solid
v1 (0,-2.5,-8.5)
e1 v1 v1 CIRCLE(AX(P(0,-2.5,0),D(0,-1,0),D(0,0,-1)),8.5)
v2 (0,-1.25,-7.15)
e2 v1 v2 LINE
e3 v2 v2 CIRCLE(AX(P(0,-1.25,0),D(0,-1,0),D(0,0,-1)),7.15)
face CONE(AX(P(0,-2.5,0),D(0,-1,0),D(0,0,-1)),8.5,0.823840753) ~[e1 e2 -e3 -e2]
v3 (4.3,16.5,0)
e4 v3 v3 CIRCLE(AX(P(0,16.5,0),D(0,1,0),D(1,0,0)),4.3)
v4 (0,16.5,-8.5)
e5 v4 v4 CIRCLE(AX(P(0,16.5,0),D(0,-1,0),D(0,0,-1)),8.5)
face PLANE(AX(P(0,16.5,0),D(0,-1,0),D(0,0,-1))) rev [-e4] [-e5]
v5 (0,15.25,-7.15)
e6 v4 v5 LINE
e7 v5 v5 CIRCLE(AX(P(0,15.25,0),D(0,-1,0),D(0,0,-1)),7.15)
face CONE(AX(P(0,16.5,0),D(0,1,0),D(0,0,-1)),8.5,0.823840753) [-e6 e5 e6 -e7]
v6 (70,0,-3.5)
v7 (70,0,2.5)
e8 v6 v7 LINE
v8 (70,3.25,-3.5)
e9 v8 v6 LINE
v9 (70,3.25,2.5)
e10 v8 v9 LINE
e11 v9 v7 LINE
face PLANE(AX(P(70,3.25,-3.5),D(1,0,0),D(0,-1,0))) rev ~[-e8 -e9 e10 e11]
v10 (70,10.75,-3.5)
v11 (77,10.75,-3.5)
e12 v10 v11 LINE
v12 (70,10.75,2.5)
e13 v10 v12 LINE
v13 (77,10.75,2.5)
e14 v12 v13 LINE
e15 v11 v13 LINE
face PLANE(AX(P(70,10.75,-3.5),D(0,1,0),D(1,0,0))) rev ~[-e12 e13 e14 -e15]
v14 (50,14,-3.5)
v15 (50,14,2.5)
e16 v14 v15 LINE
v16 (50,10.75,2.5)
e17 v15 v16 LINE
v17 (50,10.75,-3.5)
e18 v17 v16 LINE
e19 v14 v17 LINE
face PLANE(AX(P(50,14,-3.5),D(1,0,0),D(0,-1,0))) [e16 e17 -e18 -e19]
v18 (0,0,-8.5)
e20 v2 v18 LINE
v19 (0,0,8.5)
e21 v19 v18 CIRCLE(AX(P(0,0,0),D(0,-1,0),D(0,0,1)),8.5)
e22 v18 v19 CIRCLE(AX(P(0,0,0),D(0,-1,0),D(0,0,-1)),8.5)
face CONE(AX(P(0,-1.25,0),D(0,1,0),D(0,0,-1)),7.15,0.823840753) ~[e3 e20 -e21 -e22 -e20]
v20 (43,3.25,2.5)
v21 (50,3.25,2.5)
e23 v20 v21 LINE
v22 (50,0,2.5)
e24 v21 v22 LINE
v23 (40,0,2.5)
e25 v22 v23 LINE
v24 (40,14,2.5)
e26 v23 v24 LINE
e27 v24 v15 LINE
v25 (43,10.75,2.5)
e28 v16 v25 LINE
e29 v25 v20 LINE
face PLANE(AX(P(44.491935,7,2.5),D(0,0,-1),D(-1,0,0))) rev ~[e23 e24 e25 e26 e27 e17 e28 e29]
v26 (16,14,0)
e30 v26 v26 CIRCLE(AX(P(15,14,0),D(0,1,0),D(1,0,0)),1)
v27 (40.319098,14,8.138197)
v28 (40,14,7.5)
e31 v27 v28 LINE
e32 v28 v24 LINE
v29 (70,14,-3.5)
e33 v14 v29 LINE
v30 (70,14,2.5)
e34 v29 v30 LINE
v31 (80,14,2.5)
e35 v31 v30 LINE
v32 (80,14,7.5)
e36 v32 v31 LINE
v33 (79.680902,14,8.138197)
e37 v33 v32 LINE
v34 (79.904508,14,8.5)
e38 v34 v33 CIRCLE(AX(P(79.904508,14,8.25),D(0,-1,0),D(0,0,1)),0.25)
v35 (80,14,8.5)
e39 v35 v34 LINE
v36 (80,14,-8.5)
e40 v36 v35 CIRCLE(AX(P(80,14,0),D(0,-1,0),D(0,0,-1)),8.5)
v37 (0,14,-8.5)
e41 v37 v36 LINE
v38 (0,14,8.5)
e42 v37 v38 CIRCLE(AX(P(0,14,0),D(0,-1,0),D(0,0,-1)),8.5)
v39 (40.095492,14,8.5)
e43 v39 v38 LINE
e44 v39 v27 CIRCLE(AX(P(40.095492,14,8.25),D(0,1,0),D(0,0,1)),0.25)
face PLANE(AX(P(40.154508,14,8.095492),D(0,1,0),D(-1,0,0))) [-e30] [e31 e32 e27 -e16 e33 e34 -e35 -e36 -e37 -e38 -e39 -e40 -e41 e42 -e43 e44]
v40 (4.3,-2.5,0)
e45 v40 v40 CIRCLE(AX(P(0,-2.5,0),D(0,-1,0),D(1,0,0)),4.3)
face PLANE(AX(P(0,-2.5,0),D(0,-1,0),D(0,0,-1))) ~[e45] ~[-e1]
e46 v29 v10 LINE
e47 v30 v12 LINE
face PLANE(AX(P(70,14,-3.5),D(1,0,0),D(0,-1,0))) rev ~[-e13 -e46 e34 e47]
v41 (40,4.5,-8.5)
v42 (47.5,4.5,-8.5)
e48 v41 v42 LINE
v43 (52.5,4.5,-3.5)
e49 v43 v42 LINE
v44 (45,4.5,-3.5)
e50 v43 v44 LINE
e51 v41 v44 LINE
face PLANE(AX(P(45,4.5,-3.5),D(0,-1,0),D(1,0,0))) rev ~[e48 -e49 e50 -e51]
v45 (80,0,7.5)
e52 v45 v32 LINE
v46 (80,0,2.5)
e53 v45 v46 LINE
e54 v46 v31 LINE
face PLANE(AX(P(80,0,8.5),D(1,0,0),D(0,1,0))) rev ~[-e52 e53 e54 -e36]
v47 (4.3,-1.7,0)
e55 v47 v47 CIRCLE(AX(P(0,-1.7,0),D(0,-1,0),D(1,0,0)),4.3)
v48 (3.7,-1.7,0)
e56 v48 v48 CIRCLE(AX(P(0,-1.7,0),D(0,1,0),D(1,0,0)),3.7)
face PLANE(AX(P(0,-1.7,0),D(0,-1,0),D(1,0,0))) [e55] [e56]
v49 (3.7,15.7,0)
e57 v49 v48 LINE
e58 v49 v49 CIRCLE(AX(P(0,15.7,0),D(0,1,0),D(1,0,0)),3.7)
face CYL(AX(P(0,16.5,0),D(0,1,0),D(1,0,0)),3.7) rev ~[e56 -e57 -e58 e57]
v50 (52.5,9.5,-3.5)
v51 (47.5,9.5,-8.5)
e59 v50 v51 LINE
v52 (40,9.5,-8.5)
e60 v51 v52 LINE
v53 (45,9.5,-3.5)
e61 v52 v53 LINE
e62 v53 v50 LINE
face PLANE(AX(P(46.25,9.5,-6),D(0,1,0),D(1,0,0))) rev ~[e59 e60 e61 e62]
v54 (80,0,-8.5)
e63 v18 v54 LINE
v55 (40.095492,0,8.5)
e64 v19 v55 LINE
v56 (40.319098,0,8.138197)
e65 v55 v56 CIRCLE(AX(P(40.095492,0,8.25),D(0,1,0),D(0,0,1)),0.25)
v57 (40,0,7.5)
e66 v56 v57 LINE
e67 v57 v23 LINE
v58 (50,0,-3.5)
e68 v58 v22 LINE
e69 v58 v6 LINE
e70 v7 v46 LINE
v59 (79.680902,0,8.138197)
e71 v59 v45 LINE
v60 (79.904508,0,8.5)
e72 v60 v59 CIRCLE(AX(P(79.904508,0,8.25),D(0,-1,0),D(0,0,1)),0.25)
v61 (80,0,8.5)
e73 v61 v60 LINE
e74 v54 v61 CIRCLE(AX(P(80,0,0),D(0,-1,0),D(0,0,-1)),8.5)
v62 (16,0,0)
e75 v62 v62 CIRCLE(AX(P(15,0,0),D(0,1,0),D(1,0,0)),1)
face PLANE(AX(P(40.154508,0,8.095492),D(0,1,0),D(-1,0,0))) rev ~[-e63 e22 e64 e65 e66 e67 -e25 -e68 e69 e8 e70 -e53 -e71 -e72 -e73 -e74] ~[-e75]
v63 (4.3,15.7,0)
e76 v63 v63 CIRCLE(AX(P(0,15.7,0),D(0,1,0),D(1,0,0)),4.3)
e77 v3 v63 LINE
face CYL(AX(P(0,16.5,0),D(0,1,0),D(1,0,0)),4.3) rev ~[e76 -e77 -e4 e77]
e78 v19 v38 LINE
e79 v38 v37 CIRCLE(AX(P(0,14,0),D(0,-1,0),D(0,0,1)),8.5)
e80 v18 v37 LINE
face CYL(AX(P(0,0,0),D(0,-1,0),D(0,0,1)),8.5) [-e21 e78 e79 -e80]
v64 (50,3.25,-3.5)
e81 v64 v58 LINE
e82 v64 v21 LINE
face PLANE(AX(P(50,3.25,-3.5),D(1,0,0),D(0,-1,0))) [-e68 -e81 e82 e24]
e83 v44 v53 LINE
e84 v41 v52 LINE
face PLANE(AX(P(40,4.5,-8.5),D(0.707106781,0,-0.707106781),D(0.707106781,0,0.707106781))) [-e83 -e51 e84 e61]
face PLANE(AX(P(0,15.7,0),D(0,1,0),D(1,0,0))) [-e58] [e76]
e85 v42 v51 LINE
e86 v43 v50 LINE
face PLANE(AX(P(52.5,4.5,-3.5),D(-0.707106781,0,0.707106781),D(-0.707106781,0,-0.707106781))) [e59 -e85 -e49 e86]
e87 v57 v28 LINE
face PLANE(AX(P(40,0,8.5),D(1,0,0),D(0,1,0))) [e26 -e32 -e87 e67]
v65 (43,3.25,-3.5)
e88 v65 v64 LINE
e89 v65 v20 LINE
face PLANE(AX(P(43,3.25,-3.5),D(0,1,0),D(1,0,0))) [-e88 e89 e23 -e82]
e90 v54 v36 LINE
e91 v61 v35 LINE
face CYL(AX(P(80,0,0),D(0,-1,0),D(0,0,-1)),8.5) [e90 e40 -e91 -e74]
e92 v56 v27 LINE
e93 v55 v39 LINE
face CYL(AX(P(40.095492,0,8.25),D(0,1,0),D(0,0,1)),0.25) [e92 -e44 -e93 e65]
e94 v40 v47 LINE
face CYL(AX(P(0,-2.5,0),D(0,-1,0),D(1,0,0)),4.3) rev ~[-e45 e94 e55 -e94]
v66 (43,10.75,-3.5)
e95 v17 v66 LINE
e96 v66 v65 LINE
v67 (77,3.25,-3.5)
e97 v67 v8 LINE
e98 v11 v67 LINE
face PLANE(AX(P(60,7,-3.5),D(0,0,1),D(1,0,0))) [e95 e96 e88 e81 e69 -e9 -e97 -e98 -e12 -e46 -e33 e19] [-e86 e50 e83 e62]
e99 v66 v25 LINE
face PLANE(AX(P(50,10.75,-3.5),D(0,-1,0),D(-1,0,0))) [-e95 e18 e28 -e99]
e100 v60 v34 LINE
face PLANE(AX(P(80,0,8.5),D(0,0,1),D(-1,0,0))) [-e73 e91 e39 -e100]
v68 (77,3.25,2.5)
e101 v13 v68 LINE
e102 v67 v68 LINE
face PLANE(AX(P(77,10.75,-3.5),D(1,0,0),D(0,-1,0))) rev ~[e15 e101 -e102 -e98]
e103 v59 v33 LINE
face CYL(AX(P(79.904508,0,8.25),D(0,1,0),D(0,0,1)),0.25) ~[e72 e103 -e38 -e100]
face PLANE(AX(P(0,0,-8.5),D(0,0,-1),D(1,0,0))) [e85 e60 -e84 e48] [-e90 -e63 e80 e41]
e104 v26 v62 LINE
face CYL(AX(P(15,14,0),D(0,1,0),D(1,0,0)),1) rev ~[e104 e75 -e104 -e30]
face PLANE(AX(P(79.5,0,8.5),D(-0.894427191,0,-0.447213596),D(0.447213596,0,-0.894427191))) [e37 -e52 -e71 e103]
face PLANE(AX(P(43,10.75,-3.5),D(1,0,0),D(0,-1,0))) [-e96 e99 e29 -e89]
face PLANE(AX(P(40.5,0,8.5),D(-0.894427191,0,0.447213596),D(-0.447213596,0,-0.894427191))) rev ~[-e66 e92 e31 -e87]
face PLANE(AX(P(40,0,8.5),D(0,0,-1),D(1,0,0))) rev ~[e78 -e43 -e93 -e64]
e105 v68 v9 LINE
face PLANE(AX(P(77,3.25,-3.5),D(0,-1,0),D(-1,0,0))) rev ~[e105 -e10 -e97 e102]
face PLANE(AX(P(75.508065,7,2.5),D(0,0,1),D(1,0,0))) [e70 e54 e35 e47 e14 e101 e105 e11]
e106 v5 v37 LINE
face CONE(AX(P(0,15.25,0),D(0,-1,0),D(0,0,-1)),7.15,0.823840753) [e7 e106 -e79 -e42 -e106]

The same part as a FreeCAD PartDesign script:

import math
import FreeCAD as App
import Part
import Sketcher
from FreeCAD import Vector
Q = App.Units.Quantity


def edges_at(feature, points):
    """Names of the edges that pass closest to the given points."""
    edges = feature.Shape.Edges
    near = lambda p: min(range(len(edges)), key=lambda i: edges[i].distToShape(Part.Vertex(*p))[0])
    return sorted({f"Edge{near(p) + 1}" for p in points})


def add_polygon(sketch, points):
    """Adds a closed chain of lines whose ends are joined by coincident constraints."""
    first, n = sketch.GeometryCount, len(points)
    for a, b in zip(points, points[1:] + points[:1]):
        sketch.addGeometry(Part.LineSegment(App.Vector(*a, 0), App.Vector(*b, 0)), False)
    for i in range(n):
        sketch.addConstraint(Sketcher.Constraint("Coincident", first + i, 2, first + (i + 1) % n, 1))

doc = App.newDocument("Part")
body = doc.addObject("PartDesign::Body", "Body")

sketch1 = body.newObject("Sketcher::SketchObject", "Sketch")
sketch1.AttachmentSupport = (doc.getObject("XZ_Plane"), [""])
sketch1.MapMode = "FlatFace"
sketch1.addGeometry(Part.LineSegment(Vector(80, -8.5, 0), Vector(0, -8.5, 0)), False)
sketch1.addGeometry(Part.ArcOfCircle(Part.Circle(Vector(0, 0, 0), Vector(0, 0, 1), 8.5), math.radians(90), math.radians(270)), False)
sketch1.addGeometry(Part.LineSegment(Vector(0, 8.5, 0), Vector(80, 8.5, 0)), False)
sketch1.addGeometry(Part.ArcOfCircle(Part.Circle(Vector(80, 0, 0), Vector(0, 0, 1), 8.5), math.radians(-90), math.radians(90)), False)
sketch1.addConstraint(Sketcher.Constraint("Tangent", 0, 2, 1, 2))
sketch1.addConstraint(Sketcher.Constraint("Tangent", 1, 1, 2, 1))
sketch1.addConstraint(Sketcher.Constraint("Tangent", 2, 2, 3, 2))
sketch1.addConstraint(Sketcher.Constraint("Tangent", 3, 1, 0, 1))
sketch1.addConstraint(Sketcher.Constraint("Horizontal", 0))
sketch1.addConstraint(Sketcher.Constraint("Horizontal", 2))
sketch1.addConstraint(Sketcher.Constraint("Coincident", 1, 3, -1, 1))
sketch1.addConstraint(Sketcher.Constraint("Radius", 1, Q("8.5 mm")))
sketch1.addConstraint(Sketcher.Constraint("DistanceX", 0, 2, 0, 1, Q("80 mm")))
pad1 = body.newObject("PartDesign::Pad", "Pad")
pad1.Profile = sketch1
pad1.Length = 14
pad1.Reversed = True

sketch2 = body.newObject("Sketcher::SketchObject", "Sketch001")
sketch2.AttachmentSupport = (doc.getObject("YZ_Plane"), [""])
sketch2.MapMode = "FlatFace"
add_polygon(sketch2, [(16.5, 0), (14, 0), (14, -8.5), (15.25, -7.15), (16.5, -8.5)])
add_polygon(sketch2, [(0, 0), (-2.5, 0), (-2.5, -8.5), (-1.25, -7.15), (0, -8.5)])
sketch2.addConstraint(Sketcher.Constraint("Horizontal", 0))
sketch2.addConstraint(Sketcher.Constraint("Vertical", 1))
sketch2.addConstraint(Sketcher.Constraint("Vertical", 4))
sketch2.addConstraint(Sketcher.Constraint("Horizontal", 5))
sketch2.addConstraint(Sketcher.Constraint("Vertical", 6))
sketch2.addConstraint(Sketcher.Constraint("Vertical", 9))
sketch2.addConstraint(Sketcher.Constraint("Coincident", 9, 2, -1, 1))
sketch2.addConstraint(Sketcher.Constraint("PointOnObject", 0, 2, -1))
sketch2.addConstraint(Sketcher.Constraint("Parallel", 2, 7))
sketch2.addConstraint(Sketcher.Constraint("Parallel", 3, 8))
sketch2.addConstraint(Sketcher.Constraint("Horizontal", 1, 2, 3, 2))
sketch2.addConstraint(Sketcher.Constraint("Horizontal", 3, 2, 6, 2))
sketch2.addConstraint(Sketcher.Constraint("Horizontal", 2, 2, 7, 2))
sketch2.addConstraint(Sketcher.Constraint("Horizontal", 6, 2, 8, 2))
sketch2.addConstraint(Sketcher.Constraint("Equal", 2, 3))
sketch2.addConstraint(Sketcher.Constraint("DistanceX", 0, 2, 0, 1, Q("2.5 mm")))
sketch2.addConstraint(Sketcher.Constraint("DistanceY", 1, 2, 1, 1, Q("8.5 mm")))
sketch2.addConstraint(Sketcher.Constraint("DistanceX", -1, 1, 0, 2, Q("14 mm")))
sketch2.addConstraint(Sketcher.Constraint("DistanceY", 2, 2, -1, 1, Q("7.15 mm")))
revolution = body.newObject("PartDesign::Revolution", "Revolution")
revolution.Profile = sketch2
revolution.ReferenceAxis = (sketch2, ["H_Axis"])
revolution.Angle = 360

sketch3 = body.newObject("Sketcher::SketchObject", "Sketch002")
sketch3.AttachmentSupport = (doc.getObject("XZ_Plane"), [""])
sketch3.MapMode = "FlatFace"
sketch3.AttachmentOffset = App.Placement(Vector(0, 0, -16.5), App.Rotation())
sketch3.addGeometry(Part.Circle(Vector(0, 0, 0), Vector(0, 0, 1), 3.7), False)
sketch3.addConstraint(Sketcher.Constraint("Coincident", 0, 3, -1, 1))
sketch3.addConstraint(Sketcher.Constraint("Diameter", 0, Q("7.4 mm")))
pocket1 = body.newObject("PartDesign::Pocket", "Pocket")
pocket1.Profile = sketch3
pocket1.Length = 19
pocket1.Reversed = True

sketch4 = body.newObject("Sketcher::SketchObject", "Sketch003")
sketch4.AttachmentSupport = (doc.getObject("XZ_Plane"), [""])
sketch4.MapMode = "FlatFace"
sketch4.AttachmentOffset = App.Placement(Vector(0, 0, -16.5), App.Rotation())
sketch4.addGeometry(Part.Circle(Vector(0, 0, 0), Vector(0, 0, 1), 4.3), False)
sketch4.addConstraint(Sketcher.Constraint("Coincident", 0, 3, -1, 1))
sketch4.addConstraint(Sketcher.Constraint("Diameter", 0, Q("8.6 mm")))
pocket2 = body.newObject("PartDesign::Pocket", "Pocket001")
pocket2.Profile = sketch4
pocket2.Length = 0.8
pocket2.Reversed = True

sketch5 = body.newObject("Sketcher::SketchObject", "Sketch004")
sketch5.AttachmentSupport = (doc.getObject("XZ_Plane"), [""])
sketch5.MapMode = "FlatFace"
sketch5.AttachmentOffset = App.Placement(Vector(0, 0, 2.5), App.Rotation())
sketch5.addGeometry(Part.Circle(Vector(0, 0, 0), Vector(0, 0, 1), 4.3), False)
sketch5.addConstraint(Sketcher.Constraint("Coincident", 0, 3, -1, 1))
sketch5.addConstraint(Sketcher.Constraint("Diameter", 0, Q("8.6 mm")))
pocket3 = body.newObject("PartDesign::Pocket", "Pocket002")
pocket3.Profile = sketch5
pocket3.Length = 0.8

sketch6 = body.newObject("Sketcher::SketchObject", "Sketch005")
sketch6.AttachmentSupport = (doc.getObject("XY_Plane"), [""])
sketch6.MapMode = "FlatFace"
sketch6.AttachmentOffset = App.Placement(Vector(0, 0, 8.5), App.Rotation())
add_polygon(sketch6, [(40, 14), (40, 0), (80, 0), (80, 14)])
sketch6.addConstraint(Sketcher.Constraint("Vertical", 0))
sketch6.addConstraint(Sketcher.Constraint("Horizontal", 1))
sketch6.addConstraint(Sketcher.Constraint("Vertical", 2))
sketch6.addConstraint(Sketcher.Constraint("Horizontal", 3))
sketch6.addConstraint(Sketcher.Constraint("PointOnObject", 0, 2, -1))
sketch6.addConstraint(Sketcher.Constraint("DistanceX", 1, 1, 1, 2, Q("40 mm")))
sketch6.addConstraint(Sketcher.Constraint("DistanceY", 0, 2, 0, 1, Q("14 mm")))
sketch6.addConstraint(Sketcher.Constraint("DistanceX", -1, 1, 0, 2, Q("40 mm")))
pocket4 = body.newObject("PartDesign::Pocket", "Pocket003")
pocket4.Profile = sketch6
pocket4.Length = 12

sketch7 = body.newObject("Sketcher::SketchObject", "Sketch006")
sketch7.AttachmentSupport = (doc.getObject("XY_Plane"), [""])
sketch7.MapMode = "FlatFace"
sketch7.AttachmentOffset = App.Placement(Vector(0, 0, -3.5), App.Rotation())
add_polygon(sketch7, [(45, 9.5), (45, 4.5), (47.5, 4.5), (47.5, 9.5)])
sketch7.addConstraint(Sketcher.Constraint("Vertical", 0))
sketch7.addConstraint(Sketcher.Constraint("Horizontal", 1))
sketch7.addConstraint(Sketcher.Constraint("Vertical", 2))
sketch7.addConstraint(Sketcher.Constraint("Horizontal", 3))
sketch7.addConstraint(Sketcher.Constraint("DistanceY", 0, 2, 0, 1, Q("5 mm")))
sketch7.addConstraint(Sketcher.Constraint("DistanceX", 1, 1, 1, 2, Q("2.5 mm")))
sketch7.addConstraint(Sketcher.Constraint("DistanceX", -1, 1, 0, 2, Q("45 mm")))
sketch7.addConstraint(Sketcher.Constraint("DistanceY", -1, 1, 0, 2, Q("4.5 mm")))
pocket5 = body.newObject("PartDesign::Pocket", "Pocket004")
pocket5.Profile = sketch7
pocket5.Length = 5

sketch8 = body.newObject("Sketcher::SketchObject", "Sketch007")
sketch8.AttachmentSupport = (doc.getObject("XZ_Plane"), [""])
sketch8.MapMode = "FlatFace"
sketch8.AttachmentOffset = App.Placement(Vector(0, 0, -4.5), App.Rotation())
add_polygon(sketch8, [(52.5, -3.5), (47.5, -8.5), (40, -8.5), (45, -3.5)])
sketch8.addConstraint(Sketcher.Constraint("Horizontal", 1))
sketch8.addConstraint(Sketcher.Constraint("Horizontal", 3))
sketch8.addConstraint(Sketcher.Constraint("Parallel", 0, 2))
sketch8.addConstraint(Sketcher.Constraint("Angle", 0, Q("-135 deg")))
sketch8.addConstraint(Sketcher.Constraint("DistanceX", 1, 2, 1, 1, Q("7.5 mm")))
sketch8.addConstraint(Sketcher.Constraint("DistanceX", -1, 1, 1, 2, Q("40 mm")))
sketch8.addConstraint(Sketcher.Constraint("DistanceX", -1, 1, 2, 2, Q("45 mm")))
sketch8.addConstraint(Sketcher.Constraint("DistanceY", 0, 2, -1, 1, Q("8.5 mm")))
pocket6 = body.newObject("PartDesign::Pocket", "Pocket005")
pocket6.Profile = sketch8
pocket6.Length = 5

sketch9 = body.newObject("Sketcher::SketchObject", "Sketch008")
sketch9.AttachmentSupport = (doc.getObject("XY_Plane"), [""])
sketch9.MapMode = "FlatFace"
sketch9.AttachmentOffset = App.Placement(Vector(0, 0, -3.5), App.Rotation())
add_polygon(sketch9, [(80, 14), (70, 14), (70, 10.75), (77, 10.75), (77, 3.25), (70, 3.25), (70, 0), (80, 0)])
add_polygon(sketch9, [(50, 10.75), (50, 14), (40, 14), (40, 0), (50, 0), (50, 3.25), (43, 3.25), (43, 10.75)])
sketch9.addConstraint(Sketcher.Constraint("Horizontal", 0))
sketch9.addConstraint(Sketcher.Constraint("Vertical", 1))
sketch9.addConstraint(Sketcher.Constraint("Horizontal", 2))
sketch9.addConstraint(Sketcher.Constraint("Vertical", 3))
sketch9.addConstraint(Sketcher.Constraint("Horizontal", 4))
sketch9.addConstraint(Sketcher.Constraint("Vertical", 5))
sketch9.addConstraint(Sketcher.Constraint("Horizontal", 6))
sketch9.addConstraint(Sketcher.Constraint("Vertical", 7))
sketch9.addConstraint(Sketcher.Constraint("Vertical", 8))
sketch9.addConstraint(Sketcher.Constraint("Horizontal", 9))
sketch9.addConstraint(Sketcher.Constraint("Vertical", 10))
sketch9.addConstraint(Sketcher.Constraint("Horizontal", 11))
sketch9.addConstraint(Sketcher.Constraint("Vertical", 12))
sketch9.addConstraint(Sketcher.Constraint("Horizontal", 13))
sketch9.addConstraint(Sketcher.Constraint("Vertical", 14))
sketch9.addConstraint(Sketcher.Constraint("Horizontal", 15))
sketch9.addConstraint(Sketcher.Constraint("PointOnObject", 5, 2, -1))
sketch9.addConstraint(Sketcher.Constraint("PointOnObject", 10, 2, -1))
sketch9.addConstraint(Sketcher.Constraint("Horizontal", 7, 2, 8, 2))
sketch9.addConstraint(Sketcher.Constraint("Horizontal", 4, 2, 12, 2))
sketch9.addConstraint(Sketcher.Constraint("Horizontal", 2, 2, 14, 2))
sketch9.addConstraint(Sketcher.Constraint("Vertical", 1, 2, 4, 2))
sketch9.addConstraint(Sketcher.Constraint("Vertical", 8, 2, 11, 2))
sketch9.addConstraint(Sketcher.Constraint("Equal", 6, 9))
sketch9.addConstraint(Sketcher.Constraint("Equal", 4, 13))
sketch9.addConstraint(Sketcher.Constraint("Equal", 1, 5))
sketch9.addConstraint(Sketcher.Constraint("DistanceX", 0, 2, 0, 1, Q("10 mm")))
sketch9.addConstraint(Sketcher.Constraint("DistanceX", 2, 1, 2, 2, Q("7 mm")))
sketch9.addConstraint(Sketcher.Constraint("DistanceY", 7, 1, 7, 2, Q("14 mm")))
sketch9.addConstraint(Sketcher.Constraint("DistanceY", 3, 2, 3, 1, Q("7.5 mm")))
sketch9.addConstraint(Sketcher.Constraint("DistanceX", -1, 1, 0, 2, Q("70 mm")))
sketch9.addConstraint(Sketcher.Constraint("DistanceX", -1, 1, 8, 2, Q("50 mm")))
pad2 = body.newObject("PartDesign::Pad", "Pad001")
pad2.Profile = sketch9
pad2.Length = 6

sketch10 = body.newObject("Sketcher::SketchObject", "Sketch009")
sketch10.AttachmentSupport = (doc.getObject("XZ_Plane"), [""])
sketch10.MapMode = "FlatFace"
add_polygon(sketch10, [(40.5, 8.5), (40, 8.5), (40, 7.5)])
add_polygon(sketch10, [(80, 8.5), (79.5, 8.5), (80, 7.5)])
sketch10.addConstraint(Sketcher.Constraint("Horizontal", 0))
sketch10.addConstraint(Sketcher.Constraint("Vertical", 1))
sketch10.addConstraint(Sketcher.Constraint("Horizontal", 3))
sketch10.addConstraint(Sketcher.Constraint("Vertical", 5))
sketch10.addConstraint(Sketcher.Constraint("Horizontal", 2, 2, 3, 2))
sketch10.addConstraint(Sketcher.Constraint("Horizontal", 1, 2, 4, 2))
sketch10.addConstraint(Sketcher.Constraint("Equal", 0, 3))
sketch10.addConstraint(Sketcher.Constraint("DistanceY", 1, 2, 1, 1, Q("1 mm")))
sketch10.addConstraint(Sketcher.Constraint("DistanceX", 0, 2, 0, 1, Q("0.5 mm")))
sketch10.addConstraint(Sketcher.Constraint("DistanceX", -1, 1, 0, 2, Q("40 mm")))
sketch10.addConstraint(Sketcher.Constraint("DistanceX", -1, 1, 4, 2, Q("80 mm")))
sketch10.addConstraint(Sketcher.Constraint("DistanceY", -1, 1, 0, 2, Q("8.5 mm")))
pad3 = body.newObject("PartDesign::Pad", "Pad002")
pad3.Profile = sketch10
pad3.Length = 14
pad3.Reversed = True
doc.recompute()

fillet = body.newObject("PartDesign::Fillet", "Fillet")
fillet.Base = (pad3, edges_at(pad3, [(40.5, 7, 8.5), (79.5, 7, 8.5)]))
fillet.Radius = 0.25

sketch11 = body.newObject("Sketcher::SketchObject", "Sketch010")
sketch11.AttachmentSupport = (doc.getObject("XZ_Plane"), [""])
sketch11.MapMode = "FlatFace"
sketch11.AttachmentOffset = App.Placement(Vector(0, 0, -14), App.Rotation())
sketch11.addGeometry(Part.Circle(Vector(15, 0, 0), Vector(0, 0, 1), 1), False)
sketch11.addConstraint(Sketcher.Constraint("PointOnObject", 0, 3, -1))
sketch11.addConstraint(Sketcher.Constraint("Diameter", 0, Q("2 mm")))
sketch11.addConstraint(Sketcher.Constraint("DistanceX", -1, 1, 0, 3, Q("15 mm")))
pocket7 = body.newObject("PartDesign::Pocket", "Pocket006")
pocket7.Profile = sketch11
pocket7.Length = 14
pocket7.Reversed = True

doc.recompute()
